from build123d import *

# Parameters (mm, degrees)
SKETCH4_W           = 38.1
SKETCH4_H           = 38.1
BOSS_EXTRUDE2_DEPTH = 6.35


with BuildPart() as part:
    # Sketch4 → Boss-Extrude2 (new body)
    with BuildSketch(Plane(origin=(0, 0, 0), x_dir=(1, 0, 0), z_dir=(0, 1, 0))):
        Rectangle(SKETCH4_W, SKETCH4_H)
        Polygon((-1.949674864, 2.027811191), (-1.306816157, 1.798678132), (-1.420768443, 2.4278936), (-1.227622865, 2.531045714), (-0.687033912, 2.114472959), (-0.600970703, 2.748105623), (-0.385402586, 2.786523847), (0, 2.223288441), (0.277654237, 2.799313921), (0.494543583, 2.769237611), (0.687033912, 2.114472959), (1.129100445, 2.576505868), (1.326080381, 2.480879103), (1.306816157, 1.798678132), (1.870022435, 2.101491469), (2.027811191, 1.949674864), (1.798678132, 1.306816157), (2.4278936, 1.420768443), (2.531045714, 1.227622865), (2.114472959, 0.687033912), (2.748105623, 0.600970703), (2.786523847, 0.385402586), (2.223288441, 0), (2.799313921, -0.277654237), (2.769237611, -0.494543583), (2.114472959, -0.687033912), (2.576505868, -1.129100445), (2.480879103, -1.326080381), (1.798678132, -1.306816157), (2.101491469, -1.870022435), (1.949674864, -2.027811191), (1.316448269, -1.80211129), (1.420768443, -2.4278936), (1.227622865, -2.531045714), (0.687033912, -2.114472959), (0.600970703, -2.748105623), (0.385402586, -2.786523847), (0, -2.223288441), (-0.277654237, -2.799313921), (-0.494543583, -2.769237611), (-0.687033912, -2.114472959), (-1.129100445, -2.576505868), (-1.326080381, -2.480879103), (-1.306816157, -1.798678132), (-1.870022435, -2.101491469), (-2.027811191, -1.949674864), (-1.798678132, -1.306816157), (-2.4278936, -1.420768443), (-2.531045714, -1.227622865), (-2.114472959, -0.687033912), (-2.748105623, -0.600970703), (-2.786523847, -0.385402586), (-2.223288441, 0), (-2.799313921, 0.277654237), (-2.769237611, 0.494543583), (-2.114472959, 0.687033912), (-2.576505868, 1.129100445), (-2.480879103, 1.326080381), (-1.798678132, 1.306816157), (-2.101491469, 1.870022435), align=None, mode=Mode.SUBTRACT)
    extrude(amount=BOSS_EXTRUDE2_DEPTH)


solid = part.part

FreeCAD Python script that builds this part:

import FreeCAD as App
import Part
import Sketcher
Q = App.Units.Quantity


def add_polygon(sketch, points):
    """Adds a closed chain of lines whose ends are joined by coincident constraints."""
    first, n = sketch.GeometryCount, len(points)
    for a, b in zip(points, points[1:] + points[:1]):
        sketch.addGeometry(Part.LineSegment(App.Vector(*a, 0), App.Vector(*b, 0)), False)
    for i in range(n):
        sketch.addConstraint(Sketcher.Constraint("Coincident", first + i, 2, first + (i + 1) % n, 1))

doc = App.newDocument("Part")
body = doc.addObject("PartDesign::Body", "Body")

sketch1 = doc.addObject("Sketcher::SketchObject", "Sketch")
body.addObject(sketch1)
sketch1.AttachmentSupport = (doc.XZ_Plane, [""])
sketch1.MapMode = "FlatFace"
add_polygon(sketch1, [(-19.05, -19.05), (-19.05, 19.05), (19.05, 19.05), (19.05, -19.05)])
add_polygon(sketch1, [(-2.101491, -1.870022), (-1.949675, -2.027811), (-1.306816, -1.798678), (-1.420768, -2.427894), (-1.227623, -2.531046), (-0.687034, -2.114473), (-0.600971, -2.748106), (-0.385403, -2.786524), (0, -2.223288), (0.277654, -2.799314), (0.494544, -2.769238), (0.687034, -2.114473), (1.1291, -2.576506), (1.32608, -2.480879), (1.306816, -1.798678), (1.870022, -2.101491), (2.027811, -1.949675), (1.798678, -1.306816), (2.427894, -1.420768), (2.531046, -1.227623), (2.114473, -0.687034), (2.748106, -0.600971), (2.786524, -0.385403), (2.223288, 0), (2.799314, 0.277654), (2.769238, 0.494544), (2.114473, 0.687034), (2.576506, 1.1291), (2.480879, 1.32608), (1.798678, 1.306816), (2.101491, 1.870022), (1.949675, 2.027811), (1.316448, 1.802111), (1.420768, 2.427894), (1.227623, 2.531046), (0.687034, 2.114473), (0.600971, 2.748106), (0.385403, 2.786524), (0, 2.223288), (-0.277654, 2.799314), (-0.494544, 2.769238), (-0.687034, 2.114473), (-1.1291, 2.576506), (-1.32608, 2.480879), (-1.306816, 1.798678), (-1.870022, 2.101491), (-2.027811, 1.949675), (-1.798678, 1.306816), (-2.427894, 1.420768), (-2.531046, 1.227623), (-2.114473, 0.687034), (-2.748106, 0.600971), (-2.786524, 0.385403), (-2.223288, 0), (-2.799314, -0.277654), (-2.769238, -0.494544), (-2.114473, -0.687034), (-2.576506, -1.1291), (-2.480879, -1.32608), (-1.798678, -1.306816)])
sketch1.addConstraint(Sketcher.Constraint("Vertical", 0))
sketch1.addConstraint(Sketcher.Constraint("Horizontal", 1))
sketch1.addConstraint(Sketcher.Constraint("Vertical", 2))
sketch1.addConstraint(Sketcher.Constraint("Horizontal", 3))
sketch1.addConstraint(Sketcher.Constraint("Symmetric", 0, 2, 2, 2, -1, 1))
sketch1.addConstraint(Sketcher.Constraint("Symmetric", 4, 2, 34, 2, -1, 1))
sketch1.addConstraint(Sketcher.Constraint("Symmetric", 6, 2, 36, 2, -1, 1))
sketch1.addConstraint(Sketcher.Constraint("Symmetric", 7, 2, 37, 2, -1, 1))
sketch1.addConstraint(Sketcher.Constraint("Symmetric", 8, 2, 38, 2, -1, 1))
sketch1.addConstraint(Sketcher.Constraint("Symmetric", 9, 2, 39, 2, -1, 1))
sketch1.addConstraint(Sketcher.Constraint("Symmetric", 10, 2, 40, 2, -1, 1))
sketch1.addConstraint(Sketcher.Constraint("Symmetric", 11, 2, 41, 2, -1, 1))
sketch1.addConstraint(Sketcher.Constraint("Symmetric", 12, 2, 42, 2, -1, 1))
sketch1.addConstraint(Sketcher.Constraint("Symmetric", 13, 2, 43, 2, -1, 1))
sketch1.addConstraint(Sketcher.Constraint("Symmetric", 14, 2, 44, 2, -1, 1))
sketch1.addConstraint(Sketcher.Constraint("Symmetric", 15, 2, 45, 2, -1, 1))
sketch1.addConstraint(Sketcher.Constraint("Symmetric", 16, 2, 46, 2, -1, 1))
sketch1.addConstraint(Sketcher.Constraint("Symmetric", 17, 2, 47, 2, -1, 1))
sketch1.addConstraint(Sketcher.Constraint("Symmetric", 18, 2, 48, 2, -1, 1))
sketch1.addConstraint(Sketcher.Constraint("Symmetric", 19, 2, 49, 2, -1, 1))
sketch1.addConstraint(Sketcher.Constraint("Symmetric", 20, 2, 50, 2, -1, 1))
sketch1.addConstraint(Sketcher.Constraint("Symmetric", 21, 2, 51, 2, -1, 1))
sketch1.addConstraint(Sketcher.Constraint("Symmetric", 22, 2, 52, 2, -1, 1))
sketch1.addConstraint(Sketcher.Constraint("Symmetric", 23, 2, 53, 2, -1, 1))
sketch1.addConstraint(Sketcher.Constraint("Symmetric", 24, 2, 54, 2, -1, 1))
sketch1.addConstraint(Sketcher.Constraint("Symmetric", 25, 2, 55, 2, -1, 1))
sketch1.addConstraint(Sketcher.Constraint("Symmetric", 26, 2, 56, 2, -1, 1))
sketch1.addConstraint(Sketcher.Constraint("Symmetric", 27, 2, 57, 2, -1, 1))
sketch1.addConstraint(Sketcher.Constraint("Symmetric", 28, 2, 58, 2, -1, 1))
sketch1.addConstraint(Sketcher.Constraint("Symmetric", 29, 2, 59, 2, -1, 1))
sketch1.addConstraint(Sketcher.Constraint("Symmetric", 30, 2, 60, 2, -1, 1))
sketch1.addConstraint(Sketcher.Constraint("Symmetric", 31, 2, 61, 2, -1, 1))
sketch1.addConstraint(Sketcher.Constraint("Symmetric", 32, 2, 62, 2, -1, 1))
sketch1.addConstraint(Sketcher.Constraint("Symmetric", 33, 2, 63, 2, -1, 1))
sketch1.addConstraint(Sketcher.Constraint("Symmetric", 8, 2, 14, 2, -2))
sketch1.addConstraint(Sketcher.Constraint("Symmetric", 5, 2, 17, 2, -2))
sketch1.addConstraint(Sketcher.Constraint("Symmetric", 32, 2, 50, 2, -2))
sketch1.addConstraint(Sketcher.Constraint("Symmetric", 29, 2, 53, 2, -2))
sketch1.addConstraint(Sketcher.Constraint("PointOnObject", 11, 2, -2))
sketch1.addConstraint(Sketcher.Constraint("PointOnObject", 26, 2, -1))
sketch1.addConstraint(Sketcher.Constraint("Perpendicular", 4, 19))
sketch1.addConstraint(Sketcher.Constraint("Perpendicular", 5, 20))
sketch1.addConstraint(Sketcher.Constraint("Perpendicular", 6, 21))
sketch1.addConstraint(Sketcher.Constraint("Perpendicular", 7, 22))
sketch1.addConstraint(Sketcher.Constraint("Perpendicular", 8, 23))
sketch1.addConstraint(Sketcher.Constraint("Perpendicular", 9, 24))
sketch1.addConstraint(Sketcher.Constraint("Perpendicular", 10, 25))
sketch1.addConstraint(Sketcher.Constraint("Perpendicular", 11, 26))
sketch1.addConstraint(Sketcher.Constraint("Perpendicular", 12, 27))
sketch1.addConstraint(Sketcher.Constraint("Perpendicular", 13, 28))
sketch1.addConstraint(Sketcher.Constraint("Perpendicular", 14, 29))
sketch1.addConstraint(Sketcher.Constraint("Perpendicular", 15, 30))
sketch1.addConstraint(Sketcher.Constraint("Perpendicular", 16, 31))
sketch1.addConstraint(Sketcher.Constraint("Perpendicular", 17, 32))
sketch1.addConstraint(Sketcher.Constraint("Perpendicular", 18, 33))
sketch1.addConstraint(Sketcher.Constraint("Perpendicular", 20, 35))
sketch1.addConstraint(Sketcher.Constraint("Equal", 3, 0))
sketch1.addConstraint(Sketcher.Constraint("Equal", 4, 7))
sketch1.addConstraint(Sketcher.Constraint("Equal", 5, 8))
sketch1.addConstraint(Sketcher.Constraint("Equal", 6, 9))
sketch1.addConstraint(Sketcher.Constraint("Equal", 7, 10))
sketch1.addConstraint(Sketcher.Constraint("Equal", 8, 11))
sketch1.addConstraint(Sketcher.Constraint("Equal", 9, 12))
sketch1.addConstraint(Sketcher.Constraint("Equal", 10, 13))
sketch1.addConstraint(Sketcher.Constraint("Equal", 11, 14))
sketch1.addConstraint(Sketcher.Constraint("Equal", 12, 15))
sketch1.addConstraint(Sketcher.Constraint("Equal", 13, 16))
sketch1.addConstraint(Sketcher.Constraint("Equal", 14, 17))
sketch1.addConstraint(Sketcher.Constraint("Equal", 15, 18))
sketch1.addConstraint(Sketcher.Constraint("Equal", 16, 19))
sketch1.addConstraint(Sketcher.Constraint("Equal", 17, 20))
sketch1.addConstraint(Sketcher.Constraint("Equal", 18, 21))
sketch1.addConstraint(Sketcher.Constraint("Equal", 19, 22))
sketch1.addConstraint(Sketcher.Constraint("Equal", 20, 23))
sketch1.addConstraint(Sketcher.Constraint("Equal", 21, 24))
sketch1.addConstraint(Sketcher.Constraint("Equal", 22, 25))
sketch1.addConstraint(Sketcher.Constraint("Equal", 23, 26))
sketch1.addConstraint(Sketcher.Constraint("Equal", 24, 27))
sketch1.addConstraint(Sketcher.Constraint("Equal", 27, 30))
sketch1.addConstraint(Sketcher.Constraint("DistanceX", 1, 1, 1, 2, Q("1.5 in")))
sketch1.addConstraint(Sketcher.Constraint("DistanceX", -1, 1, 15, 2, Q("1.1291 mm")))
sketch1.addConstraint(Sketcher.Constraint("Distance", 6, Q("0.639451 mm")))
sketch1.addConstraint(Sketcher.Constraint("DistanceY", 4, 2, -1, 1, Q("2.027811 mm")))
sketch1.addConstraint(Sketcher.Constraint("DistanceY", 5, 2, -1, 1, Q("1.798678 mm")))
sketch1.addConstraint(Sketcher.Constraint("DistanceX", 6, 2, -1, 1, Q("1.420768 mm")))
sketch1.addConstraint(Sketcher.Constraint("DistanceX", 9, 2, -1, 1, Q("0.600971 mm")))
sketch1.addConstraint(Sketcher.Constraint("DistanceY", 11, 2, -1, 1, Q("2.223288 mm")))
sketch1.addConstraint(Sketcher.Constraint("DistanceX", -1, 1, 16, 2, Q("1.32608 mm")))
sketch1.addConstraint(Sketcher.Constraint("DistanceY", 16, 2, -1, 1, Q("2.480879 mm")))
sketch1.addConstraint(Sketcher.Constraint("DistanceY", 18, 2, -1, 1, Q("2.101491 mm")))
sketch1.addConstraint(Sketcher.Constraint("DistanceX", -1, 1, 35, 2, Q("1.316448 mm")))
sketch1.addConstraint(Sketcher.Constraint("DistanceY", -1, 1, 35, 2, Q("1.802111 mm")))
sketch1.addConstraint(Sketcher.Constraint("DistanceX", 7, 2, -1, 1, Q("1.227623 mm")))
sketch1.addConstraint(Sketcher.Constraint("DistanceX", -1, 1, 12, 2, Q("0.277654 mm")))
pad1 = doc.addObject("PartDesign::Pad", "Pad")
body.addObject(pad1)
pad1.Profile = sketch1
pad1.Length = Q("0.25 in")
pad1.Reversed = True

doc.recompute()
